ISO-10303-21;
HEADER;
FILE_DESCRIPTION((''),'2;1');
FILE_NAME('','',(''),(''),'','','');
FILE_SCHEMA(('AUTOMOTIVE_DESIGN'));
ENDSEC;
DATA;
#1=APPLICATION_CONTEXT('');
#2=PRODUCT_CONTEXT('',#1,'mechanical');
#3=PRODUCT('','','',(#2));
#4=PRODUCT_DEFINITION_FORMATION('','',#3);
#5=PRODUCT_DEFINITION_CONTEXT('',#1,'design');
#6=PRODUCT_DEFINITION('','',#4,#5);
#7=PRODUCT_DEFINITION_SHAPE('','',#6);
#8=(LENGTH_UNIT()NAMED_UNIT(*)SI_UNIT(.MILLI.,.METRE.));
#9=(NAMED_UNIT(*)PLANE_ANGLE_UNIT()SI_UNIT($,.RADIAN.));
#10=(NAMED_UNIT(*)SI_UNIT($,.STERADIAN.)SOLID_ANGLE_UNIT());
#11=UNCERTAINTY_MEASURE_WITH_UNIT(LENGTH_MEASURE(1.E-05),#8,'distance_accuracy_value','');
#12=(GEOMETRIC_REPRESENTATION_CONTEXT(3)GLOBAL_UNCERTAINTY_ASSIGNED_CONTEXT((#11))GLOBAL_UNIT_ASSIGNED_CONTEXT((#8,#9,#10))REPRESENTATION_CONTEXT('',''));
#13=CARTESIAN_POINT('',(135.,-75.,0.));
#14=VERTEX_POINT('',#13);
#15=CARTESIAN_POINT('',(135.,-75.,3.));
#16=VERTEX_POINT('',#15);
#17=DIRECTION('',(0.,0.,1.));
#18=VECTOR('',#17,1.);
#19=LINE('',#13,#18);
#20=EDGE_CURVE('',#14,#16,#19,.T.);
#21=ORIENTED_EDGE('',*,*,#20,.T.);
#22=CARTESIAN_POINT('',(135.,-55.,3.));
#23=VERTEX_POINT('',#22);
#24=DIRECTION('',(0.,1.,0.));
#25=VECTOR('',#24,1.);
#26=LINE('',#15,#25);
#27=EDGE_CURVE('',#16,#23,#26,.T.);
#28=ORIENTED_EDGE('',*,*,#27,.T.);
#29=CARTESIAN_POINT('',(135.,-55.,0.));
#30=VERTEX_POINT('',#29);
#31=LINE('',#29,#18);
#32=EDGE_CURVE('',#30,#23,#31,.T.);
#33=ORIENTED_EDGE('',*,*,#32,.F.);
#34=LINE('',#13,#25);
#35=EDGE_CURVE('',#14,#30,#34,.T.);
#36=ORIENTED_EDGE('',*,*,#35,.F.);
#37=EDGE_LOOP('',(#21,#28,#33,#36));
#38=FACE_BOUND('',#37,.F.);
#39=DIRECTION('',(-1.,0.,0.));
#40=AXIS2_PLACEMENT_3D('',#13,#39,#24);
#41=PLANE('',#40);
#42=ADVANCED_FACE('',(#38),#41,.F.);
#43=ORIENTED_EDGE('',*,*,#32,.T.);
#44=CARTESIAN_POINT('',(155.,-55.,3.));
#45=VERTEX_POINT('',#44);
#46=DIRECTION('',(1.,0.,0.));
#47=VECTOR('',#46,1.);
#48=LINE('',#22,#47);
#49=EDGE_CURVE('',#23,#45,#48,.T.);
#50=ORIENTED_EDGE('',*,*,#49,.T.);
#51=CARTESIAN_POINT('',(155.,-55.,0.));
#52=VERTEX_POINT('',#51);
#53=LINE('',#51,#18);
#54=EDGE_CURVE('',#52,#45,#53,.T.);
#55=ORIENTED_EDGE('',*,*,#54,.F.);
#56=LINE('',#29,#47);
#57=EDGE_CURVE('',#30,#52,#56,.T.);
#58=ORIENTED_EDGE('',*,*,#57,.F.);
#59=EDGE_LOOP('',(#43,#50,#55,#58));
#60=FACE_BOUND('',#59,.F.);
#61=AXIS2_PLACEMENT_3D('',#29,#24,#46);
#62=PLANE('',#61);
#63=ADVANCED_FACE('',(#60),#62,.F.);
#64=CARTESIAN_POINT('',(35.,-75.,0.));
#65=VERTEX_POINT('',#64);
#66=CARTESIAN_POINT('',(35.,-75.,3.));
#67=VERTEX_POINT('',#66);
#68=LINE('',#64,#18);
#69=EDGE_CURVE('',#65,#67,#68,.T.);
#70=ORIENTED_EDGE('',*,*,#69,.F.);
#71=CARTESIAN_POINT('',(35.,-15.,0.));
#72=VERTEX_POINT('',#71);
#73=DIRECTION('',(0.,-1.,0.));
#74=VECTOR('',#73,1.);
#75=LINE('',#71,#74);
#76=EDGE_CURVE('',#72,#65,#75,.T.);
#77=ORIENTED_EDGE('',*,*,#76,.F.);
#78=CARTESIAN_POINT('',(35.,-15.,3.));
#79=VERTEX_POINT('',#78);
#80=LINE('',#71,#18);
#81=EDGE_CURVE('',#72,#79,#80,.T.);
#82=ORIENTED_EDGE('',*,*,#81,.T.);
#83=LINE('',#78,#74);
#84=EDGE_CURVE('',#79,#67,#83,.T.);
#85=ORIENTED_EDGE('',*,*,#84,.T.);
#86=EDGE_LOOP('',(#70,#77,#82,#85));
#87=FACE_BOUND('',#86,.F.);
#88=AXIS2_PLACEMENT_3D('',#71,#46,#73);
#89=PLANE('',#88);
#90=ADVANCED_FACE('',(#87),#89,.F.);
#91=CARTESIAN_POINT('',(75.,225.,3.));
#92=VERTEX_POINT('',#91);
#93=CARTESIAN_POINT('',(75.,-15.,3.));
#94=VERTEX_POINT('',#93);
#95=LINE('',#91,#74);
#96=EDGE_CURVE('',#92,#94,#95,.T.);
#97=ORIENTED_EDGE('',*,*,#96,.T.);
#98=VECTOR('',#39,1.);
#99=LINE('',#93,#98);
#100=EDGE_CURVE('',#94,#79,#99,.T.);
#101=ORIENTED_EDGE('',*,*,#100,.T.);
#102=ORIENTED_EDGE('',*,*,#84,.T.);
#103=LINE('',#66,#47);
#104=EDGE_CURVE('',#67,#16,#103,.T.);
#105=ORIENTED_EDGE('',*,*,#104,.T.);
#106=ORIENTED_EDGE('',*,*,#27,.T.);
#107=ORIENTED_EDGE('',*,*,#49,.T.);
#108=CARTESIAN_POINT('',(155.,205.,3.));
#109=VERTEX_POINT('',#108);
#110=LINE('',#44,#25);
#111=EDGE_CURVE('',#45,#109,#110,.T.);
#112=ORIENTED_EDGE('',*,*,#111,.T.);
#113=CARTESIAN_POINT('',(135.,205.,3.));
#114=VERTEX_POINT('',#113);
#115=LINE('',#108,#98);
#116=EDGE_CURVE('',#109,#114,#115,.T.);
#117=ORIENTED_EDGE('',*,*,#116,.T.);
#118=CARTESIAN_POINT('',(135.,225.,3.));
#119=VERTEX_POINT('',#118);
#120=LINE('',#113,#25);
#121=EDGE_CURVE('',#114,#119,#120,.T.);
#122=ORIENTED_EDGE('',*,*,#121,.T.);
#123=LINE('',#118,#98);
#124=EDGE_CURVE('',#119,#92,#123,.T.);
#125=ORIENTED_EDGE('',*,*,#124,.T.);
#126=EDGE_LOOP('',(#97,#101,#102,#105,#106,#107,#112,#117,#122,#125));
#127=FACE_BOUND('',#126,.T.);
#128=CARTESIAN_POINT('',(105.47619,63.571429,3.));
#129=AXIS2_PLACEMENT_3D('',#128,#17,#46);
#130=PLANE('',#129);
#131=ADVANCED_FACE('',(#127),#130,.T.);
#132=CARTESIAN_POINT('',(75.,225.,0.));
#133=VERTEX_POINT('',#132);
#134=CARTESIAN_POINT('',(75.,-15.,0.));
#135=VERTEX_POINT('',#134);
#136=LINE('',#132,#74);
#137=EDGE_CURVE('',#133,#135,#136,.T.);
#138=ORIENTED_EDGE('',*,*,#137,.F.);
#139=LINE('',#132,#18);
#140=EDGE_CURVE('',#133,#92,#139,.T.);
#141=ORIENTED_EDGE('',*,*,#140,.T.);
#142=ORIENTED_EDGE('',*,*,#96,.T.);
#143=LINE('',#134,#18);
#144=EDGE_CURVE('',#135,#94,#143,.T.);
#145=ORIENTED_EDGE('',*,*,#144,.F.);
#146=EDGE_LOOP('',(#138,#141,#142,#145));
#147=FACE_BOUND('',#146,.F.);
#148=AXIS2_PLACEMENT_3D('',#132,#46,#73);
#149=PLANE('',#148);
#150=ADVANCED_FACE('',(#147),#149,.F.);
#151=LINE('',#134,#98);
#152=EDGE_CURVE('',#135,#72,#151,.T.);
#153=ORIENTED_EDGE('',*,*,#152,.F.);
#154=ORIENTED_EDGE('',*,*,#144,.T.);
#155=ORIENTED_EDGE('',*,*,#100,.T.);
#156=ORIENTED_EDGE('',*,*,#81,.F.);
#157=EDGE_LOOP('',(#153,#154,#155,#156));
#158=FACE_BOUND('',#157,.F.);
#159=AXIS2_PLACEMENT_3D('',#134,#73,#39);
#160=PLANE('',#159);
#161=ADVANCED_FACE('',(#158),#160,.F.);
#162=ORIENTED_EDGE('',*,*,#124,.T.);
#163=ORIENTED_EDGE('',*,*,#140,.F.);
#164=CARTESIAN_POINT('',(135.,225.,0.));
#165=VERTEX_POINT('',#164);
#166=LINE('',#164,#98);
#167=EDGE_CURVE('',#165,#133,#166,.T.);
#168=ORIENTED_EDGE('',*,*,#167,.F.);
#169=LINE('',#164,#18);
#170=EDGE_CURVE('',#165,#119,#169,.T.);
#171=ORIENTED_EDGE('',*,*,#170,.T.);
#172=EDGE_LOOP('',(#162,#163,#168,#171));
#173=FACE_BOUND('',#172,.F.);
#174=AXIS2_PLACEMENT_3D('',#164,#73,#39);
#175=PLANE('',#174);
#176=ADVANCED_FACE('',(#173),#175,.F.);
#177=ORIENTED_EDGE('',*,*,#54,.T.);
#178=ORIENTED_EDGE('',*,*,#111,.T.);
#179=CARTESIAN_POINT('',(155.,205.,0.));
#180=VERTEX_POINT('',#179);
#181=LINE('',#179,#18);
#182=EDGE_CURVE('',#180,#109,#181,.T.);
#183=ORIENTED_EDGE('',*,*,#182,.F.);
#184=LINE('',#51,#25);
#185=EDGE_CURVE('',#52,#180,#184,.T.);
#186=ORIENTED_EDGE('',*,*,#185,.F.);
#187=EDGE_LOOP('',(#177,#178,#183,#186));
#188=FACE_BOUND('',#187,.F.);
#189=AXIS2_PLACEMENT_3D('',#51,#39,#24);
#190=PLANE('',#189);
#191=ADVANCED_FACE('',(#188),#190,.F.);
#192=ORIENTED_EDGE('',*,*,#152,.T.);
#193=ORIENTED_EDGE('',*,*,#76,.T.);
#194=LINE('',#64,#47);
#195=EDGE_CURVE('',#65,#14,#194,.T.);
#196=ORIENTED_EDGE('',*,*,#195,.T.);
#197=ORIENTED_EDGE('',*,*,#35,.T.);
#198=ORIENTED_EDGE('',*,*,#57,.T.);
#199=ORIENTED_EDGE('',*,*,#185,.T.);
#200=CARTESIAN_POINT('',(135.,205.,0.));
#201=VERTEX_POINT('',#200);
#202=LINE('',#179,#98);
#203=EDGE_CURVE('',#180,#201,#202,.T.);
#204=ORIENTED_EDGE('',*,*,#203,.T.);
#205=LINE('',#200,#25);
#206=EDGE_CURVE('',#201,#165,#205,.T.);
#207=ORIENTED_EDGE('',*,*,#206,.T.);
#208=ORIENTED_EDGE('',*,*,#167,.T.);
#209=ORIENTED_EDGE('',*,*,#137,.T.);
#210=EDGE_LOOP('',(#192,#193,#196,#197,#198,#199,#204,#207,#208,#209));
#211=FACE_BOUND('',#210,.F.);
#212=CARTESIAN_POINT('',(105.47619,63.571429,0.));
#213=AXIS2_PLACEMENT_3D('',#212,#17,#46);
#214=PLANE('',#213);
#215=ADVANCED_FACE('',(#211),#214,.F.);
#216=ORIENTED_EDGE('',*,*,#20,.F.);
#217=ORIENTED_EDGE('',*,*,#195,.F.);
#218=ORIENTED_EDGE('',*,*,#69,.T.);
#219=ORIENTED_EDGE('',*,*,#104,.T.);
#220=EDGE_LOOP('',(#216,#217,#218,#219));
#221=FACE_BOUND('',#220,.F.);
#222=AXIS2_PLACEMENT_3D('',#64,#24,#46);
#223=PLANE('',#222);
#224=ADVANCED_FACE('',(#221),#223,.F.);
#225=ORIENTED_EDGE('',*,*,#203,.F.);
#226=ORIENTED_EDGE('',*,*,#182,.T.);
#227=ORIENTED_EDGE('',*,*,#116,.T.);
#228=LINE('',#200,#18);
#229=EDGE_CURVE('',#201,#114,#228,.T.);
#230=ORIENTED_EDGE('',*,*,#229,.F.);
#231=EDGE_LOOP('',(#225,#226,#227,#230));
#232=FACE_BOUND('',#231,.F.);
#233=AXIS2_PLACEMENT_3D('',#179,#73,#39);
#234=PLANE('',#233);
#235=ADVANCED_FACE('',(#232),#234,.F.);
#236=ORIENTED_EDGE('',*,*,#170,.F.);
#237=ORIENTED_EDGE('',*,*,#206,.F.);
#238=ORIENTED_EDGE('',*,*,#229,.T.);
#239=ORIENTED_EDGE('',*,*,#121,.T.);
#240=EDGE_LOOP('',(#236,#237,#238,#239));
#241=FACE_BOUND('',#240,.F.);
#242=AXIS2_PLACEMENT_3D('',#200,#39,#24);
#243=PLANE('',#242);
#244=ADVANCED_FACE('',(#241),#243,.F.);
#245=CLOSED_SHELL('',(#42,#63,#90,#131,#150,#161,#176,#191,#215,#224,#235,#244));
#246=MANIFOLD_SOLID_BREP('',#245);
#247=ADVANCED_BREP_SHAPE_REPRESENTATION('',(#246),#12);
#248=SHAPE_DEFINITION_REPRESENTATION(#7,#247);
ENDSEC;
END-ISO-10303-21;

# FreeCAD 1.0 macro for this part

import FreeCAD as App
import Part
import Sketcher


def add_polygon(sketch, points):
    """Adds a closed chain of lines whose ends are joined by coincident constraints."""
    first, n = sketch.GeometryCount, len(points)
    for a, b in zip(points, points[1:] + points[:1]):
        sketch.addGeometry(Part.LineSegment(App.Vector(*a, 0), App.Vector(*b, 0)), False)
    for i in range(n):
        sketch.addConstraint(Sketcher.Constraint("Coincident", first + i, 2, first + (i + 1) % n, 1))

doc = App.newDocument("Part")
params = doc.addObject("Spreadsheet::Sheet", "Params")
for row, (alias, value) in enumerate([
    ("sketch1_width", "100 mm"),
    ("sketch1_width2", "20 mm"),
    ("sketch1_width3", "60 mm"),
    ("sketch1_height", "260 mm"),
    ("pad1_length", "3 mm"),
], start=1):
    params.set(f"A{row}", alias)
    params.set(f"B{row}", "=" + value)
    params.setAlias(f"B{row}", alias)

body = doc.addObject("PartDesign::Body", "Body")

sketch1 = body.newObject("Sketcher::SketchObject", "Sketch")
sketch1.AttachmentSupport = (doc.getObject("XY_Plane"), [""])
sketch1.MapMode = "FlatFace"
add_polygon(sketch1, [(35, -15), (35, -75), (135, -75), (135, -55), (155, -55), (155, 205), (135, 205), (135, 225), (75, 225), (75, -15)])
sketch1.addConstraint([
    Sketcher.Constraint("Vertical", 0),
    Sketcher.Constraint("Horizontal", 1),
    Sketcher.Constraint("Vertical", 2),
    Sketcher.Constraint("Horizontal", 3),
    Sketcher.Constraint("Vertical", 4),
    Sketcher.Constraint("Horizontal", 5),
    Sketcher.Constraint("Vertical", 6),
    Sketcher.Constraint("Horizontal", 7),
    Sketcher.Constraint("Vertical", 8),
    Sketcher.Constraint("Horizontal", 9),
    Sketcher.Constraint("Vertical", 2, 2, 5, 2),
    Sketcher.Constraint("Equal", 7, 0),
    Sketcher.Constraint("Equal", 5, 2),
    Sketcher.Constraint("Equal", 2, 6),
    Sketcher.Constraint("DistanceX", 1, 1, 1, 2, 100.0),
    Sketcher.Constraint("DistanceX", 3, 1, 3, 2, 20.0),
    Sketcher.Constraint("DistanceX", 7, 2, 7, 1, 60.0),
    Sketcher.Constraint("DistanceY", 4, 1, 4, 2, 260.0),
    Sketcher.Constraint("DistanceX", -1, 1, 0, 2, 35.0),
    Sketcher.Constraint("DistanceY", 0, 2, -1, 1, 75.0),
])
sketch1.setExpression("Constraints[24]", "Params.sketch1_width")
sketch1.setExpression("Constraints[25]", "Params.sketch1_width2")
sketch1.setExpression("Constraints[26]", "Params.sketch1_width3")
sketch1.setExpression("Constraints[27]", "Params.sketch1_height")
pad1 = body.newObject("PartDesign::Pad", "Pad")
pad1.Profile = sketch1
pad1.setExpression("Length", "Params.pad1_length")

doc.recompute()
